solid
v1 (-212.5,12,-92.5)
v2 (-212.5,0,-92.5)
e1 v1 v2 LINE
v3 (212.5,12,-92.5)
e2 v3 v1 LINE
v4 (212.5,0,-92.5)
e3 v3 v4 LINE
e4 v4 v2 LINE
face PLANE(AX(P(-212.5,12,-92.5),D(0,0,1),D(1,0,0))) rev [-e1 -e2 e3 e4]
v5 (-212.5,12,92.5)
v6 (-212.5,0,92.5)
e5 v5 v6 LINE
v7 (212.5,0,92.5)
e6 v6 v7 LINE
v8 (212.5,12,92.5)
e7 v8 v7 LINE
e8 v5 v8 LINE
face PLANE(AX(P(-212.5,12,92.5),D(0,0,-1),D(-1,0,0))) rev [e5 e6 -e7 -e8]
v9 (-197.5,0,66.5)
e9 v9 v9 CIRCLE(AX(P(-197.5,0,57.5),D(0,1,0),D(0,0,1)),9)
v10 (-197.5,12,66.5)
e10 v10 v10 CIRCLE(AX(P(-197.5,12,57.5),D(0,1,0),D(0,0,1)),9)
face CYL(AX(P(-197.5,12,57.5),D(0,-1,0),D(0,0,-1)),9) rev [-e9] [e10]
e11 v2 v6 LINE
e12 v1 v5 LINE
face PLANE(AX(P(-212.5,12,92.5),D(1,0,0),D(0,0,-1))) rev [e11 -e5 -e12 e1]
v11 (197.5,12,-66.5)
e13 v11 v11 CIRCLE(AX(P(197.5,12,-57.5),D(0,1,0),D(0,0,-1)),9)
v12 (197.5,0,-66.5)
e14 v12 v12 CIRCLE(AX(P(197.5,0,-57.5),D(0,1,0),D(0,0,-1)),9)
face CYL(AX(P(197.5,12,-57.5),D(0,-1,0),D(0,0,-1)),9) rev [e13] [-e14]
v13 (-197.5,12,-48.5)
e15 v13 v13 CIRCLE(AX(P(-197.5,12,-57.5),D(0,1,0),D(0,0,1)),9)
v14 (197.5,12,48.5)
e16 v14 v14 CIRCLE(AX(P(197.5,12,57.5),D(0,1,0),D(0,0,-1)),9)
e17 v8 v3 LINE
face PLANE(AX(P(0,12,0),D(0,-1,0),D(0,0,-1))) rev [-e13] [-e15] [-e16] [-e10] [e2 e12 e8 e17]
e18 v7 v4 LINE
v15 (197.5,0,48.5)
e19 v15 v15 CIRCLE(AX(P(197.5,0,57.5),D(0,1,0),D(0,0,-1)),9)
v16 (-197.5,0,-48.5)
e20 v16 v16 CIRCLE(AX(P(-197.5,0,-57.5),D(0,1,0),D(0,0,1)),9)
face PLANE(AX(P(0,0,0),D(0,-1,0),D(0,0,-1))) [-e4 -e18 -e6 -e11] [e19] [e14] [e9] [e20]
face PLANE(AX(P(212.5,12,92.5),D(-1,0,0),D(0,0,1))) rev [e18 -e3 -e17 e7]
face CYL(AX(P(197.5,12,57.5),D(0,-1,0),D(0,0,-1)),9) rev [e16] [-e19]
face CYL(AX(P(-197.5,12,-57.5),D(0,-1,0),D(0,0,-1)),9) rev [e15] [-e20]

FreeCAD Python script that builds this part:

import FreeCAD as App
import Part
import Sketcher
Q = App.Units.Quantity

doc = App.newDocument("Part")
body = doc.addObject("PartDesign::Body", "Body")

# Sketch on XZ plane
sketch1 = body.newObject("Sketcher::SketchObject", "Sketch")
sketch1.AttachmentSupport = (doc.getObject("XZ_Plane"), [""])
sketch1.MapMode = "FlatFace"
sketch1.addGeometry([
    Part.LineSegment(App.Vector(-212, -92, 0), App.Vector(-212, 92, 0)),  # 0
    Part.LineSegment(App.Vector(-212, 92, 0), App.Vector(212, 92, 0)),  # 1
    Part.LineSegment(App.Vector(212, 92, 0), App.Vector(212, -92, 0)),  # 2
    Part.LineSegment(App.Vector(212, -92, 0), App.Vector(-212, -92, 0)),  # 3
    Part.Circle(App.Vector(-198, 58, 0), App.Vector(0, 0, 1), 9),  # 4
    Part.Circle(App.Vector(198, 58, 0), App.Vector(0, 0, 1), 9),  # 5
    Part.Circle(App.Vector(-198, -58, 0), App.Vector(0, 0, 1), 9),  # 6
    Part.Circle(App.Vector(198, -58, 0), App.Vector(0, 0, 1), 9),  # 7
], False)
sketch1.addConstraint([
    Sketcher.Constraint("Coincident", 0, 2, 1, 1),
    Sketcher.Constraint("Coincident", 1, 2, 2, 1),
    Sketcher.Constraint("Coincident", 2, 2, 3, 1),
    Sketcher.Constraint("Coincident", 3, 2, 0, 1),
    Sketcher.Constraint("Vertical", 0),
    Sketcher.Constraint("Horizontal", 1),
    Sketcher.Constraint("Vertical", 2),
    Sketcher.Constraint("Horizontal", 3),
    Sketcher.Constraint("Equal", 4, 5),
    Sketcher.Constraint("Equal", 5, 6),
    Sketcher.Constraint("Equal", 6, 7),
    Sketcher.Constraint("Symmetric", 5, 3, 6, 3, -1, 1),
    Sketcher.Constraint("Symmetric", 4, 3, 7, 3, -1, 1),
    Sketcher.Constraint("Symmetric", 0, 2, 2, 2, -1, 1),
    Sketcher.Constraint("Symmetric", 4, 3, 5, 3, -2),
    Sketcher.Constraint("Diameter", 4, Q("18 mm")),
    Sketcher.Constraint("DistanceX", 1, 1, 1, 2, Q("425 mm")),
    Sketcher.Constraint("DistanceY", 0, 1, 0, 2, Q("185 mm")),
    Sketcher.Constraint("DistanceX", 4, 3, 5, 3, Q("395 mm")),
    Sketcher.Constraint("DistanceY", 6, 3, 4, 3, Q("115 mm")),
])
pad1 = body.newObject("PartDesign::Pad", "Pad")
pad1.Profile = sketch1
pad1.Length = 12
pad1.Reversed = True

doc.recompute()
